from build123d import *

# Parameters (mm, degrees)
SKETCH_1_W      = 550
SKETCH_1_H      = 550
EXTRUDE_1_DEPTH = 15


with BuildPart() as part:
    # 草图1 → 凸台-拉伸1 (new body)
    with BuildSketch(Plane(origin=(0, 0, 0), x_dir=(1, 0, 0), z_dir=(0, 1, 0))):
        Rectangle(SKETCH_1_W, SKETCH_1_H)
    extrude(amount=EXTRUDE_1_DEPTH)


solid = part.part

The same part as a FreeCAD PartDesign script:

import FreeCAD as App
import Part
import Sketcher

V = App.Vector
Q = App.Units.Quantity

doc = App.newDocument("Part")
params = doc.addObject("Spreadsheet::Sheet", "Params")
for row, (alias, value) in enumerate([
    ("sketch1_width", "550 mm"),
    ("pad1_length", "15 mm"),
], start=1):
    params.set(f"A{row}", alias)
    params.set(f"B{row}", "=" + value)
    params.setAlias(f"B{row}", alias)

body = doc.addObject("PartDesign::Body", "Body")

# Sketch on XZ plane
sketch1 = body.newObject("Sketcher::SketchObject", "Sketch")
sketch1.AttachmentSupport = (doc.getObject("XZ_Plane"), [""])
sketch1.MapMode = "FlatFace"
sketch1.addGeometry(Part.LineSegment(V(-275, -275, 0), V(-275, 275, 0)), False)
sketch1.addGeometry(Part.LineSegment(V(-275, 275, 0), V(275, 275, 0)), False)
sketch1.addGeometry(Part.LineSegment(V(275, 275, 0), V(275, -275, 0)), False)
sketch1.addGeometry(Part.LineSegment(V(275, -275, 0), V(-275, -275, 0)), False)
sketch1.addConstraint(Sketcher.Constraint("Coincident", 0, 2, 1, 1))
sketch1.addConstraint(Sketcher.Constraint("Coincident", 1, 2, 2, 1))
sketch1.addConstraint(Sketcher.Constraint("Coincident", 2, 2, 3, 1))
sketch1.addConstraint(Sketcher.Constraint("Coincident", 3, 2, 0, 1))
sketch1.addConstraint(Sketcher.Constraint("Vertical", 0))
sketch1.addConstraint(Sketcher.Constraint("Horizontal", 1))
sketch1.addConstraint(Sketcher.Constraint("Vertical", 2))
sketch1.addConstraint(Sketcher.Constraint("Horizontal", 3))
sketch1.addConstraint(Sketcher.Constraint("Symmetric", 0, 2, 2, 2, -1, 1))
sketch1.addConstraint(Sketcher.Constraint("Equal", 3, 0))
sketch1.addConstraint(Sketcher.Constraint("DistanceX", 1, 1, 1, 2, Q("550 mm")))
sketch1.setExpression("Constraints[10]", "Params.sketch1_width")
pad1 = body.newObject("PartDesign::Pad", "Pad")
pad1.Profile = sketch1
pad1.setExpression("Length", "Params.pad1_length")
pad1.Reversed = True

doc.recompute()
